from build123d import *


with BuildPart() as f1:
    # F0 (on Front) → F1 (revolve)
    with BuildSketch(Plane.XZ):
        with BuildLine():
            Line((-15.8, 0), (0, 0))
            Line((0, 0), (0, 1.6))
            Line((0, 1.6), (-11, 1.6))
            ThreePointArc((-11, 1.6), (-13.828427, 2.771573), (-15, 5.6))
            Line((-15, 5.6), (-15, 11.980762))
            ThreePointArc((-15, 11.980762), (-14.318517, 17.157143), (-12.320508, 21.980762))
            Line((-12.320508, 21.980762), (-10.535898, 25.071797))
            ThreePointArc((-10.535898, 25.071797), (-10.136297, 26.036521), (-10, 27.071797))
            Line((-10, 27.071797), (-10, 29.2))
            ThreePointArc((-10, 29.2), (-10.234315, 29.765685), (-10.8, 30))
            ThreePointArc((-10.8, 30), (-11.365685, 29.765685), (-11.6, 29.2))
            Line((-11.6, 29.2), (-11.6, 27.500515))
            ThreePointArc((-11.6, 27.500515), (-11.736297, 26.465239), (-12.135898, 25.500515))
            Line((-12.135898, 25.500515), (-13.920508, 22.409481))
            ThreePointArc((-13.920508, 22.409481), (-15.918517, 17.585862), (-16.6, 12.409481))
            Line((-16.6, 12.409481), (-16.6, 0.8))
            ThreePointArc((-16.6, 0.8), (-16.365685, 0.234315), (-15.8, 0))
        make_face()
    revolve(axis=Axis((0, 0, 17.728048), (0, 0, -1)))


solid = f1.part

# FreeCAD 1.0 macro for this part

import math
import FreeCAD as App
import Part
import Sketcher

V = App.Vector
Q = App.Units.Quantity

doc = App.newDocument("Part")
body = doc.addObject("PartDesign::Body", "Body")

# Sketch on XZ plane
sketch1 = body.newObject("Sketcher::SketchObject", "Sketch")
sketch1.AttachmentSupport = (doc.getObject("XZ_Plane"), [""])
sketch1.MapMode = "FlatFace"
sketch1.addGeometry(Part.LineSegment(V(-15.8, 0, 0), V(0, 0, 0)), False)
sketch1.addGeometry(Part.LineSegment(V(0, 0, 0), V(0, 1.6, 0)), False)
sketch1.addGeometry(Part.LineSegment(V(0, 1.6, 0), V(-11, 1.6, 0)), False)
sketch1.addGeometry(Part.ArcOfCircle(Part.Circle(V(-11, 5.6, 0), V(0, 0, 1), 4), math.radians(-179.999994), math.radians(-90.000006)), False)
sketch1.addGeometry(Part.LineSegment(V(-15, 5.6, 0), V(-15, 11.980762, 0)), False)
sketch1.addGeometry(Part.ArcOfCircle(Part.Circle(V(4.999985, 11.980766, 0), V(0, 0, 1), 19.999985), math.radians(149.999988), math.radians(180.000011)), False)
sketch1.addGeometry(Part.LineSegment(V(-12.320508, 21.980762, 0), V(-10.535898, 25.071797, 0)), False)
sketch1.addGeometry(Part.ArcOfCircle(Part.Circle(V(-14.000015, 27.0718, 0), V(0, 0, 1), 4.000015), math.radians(-29.999933), math.radians(-0.000046)), False)
sketch1.addGeometry(Part.LineSegment(V(-10, 27.071797, 0), V(-10, 29.2, 0)), False)
sketch1.addGeometry(Part.ArcOfCircle(Part.Circle(V(-10.800001, 29.199999, 0), V(0, 0, 1), 0.800001), math.radians(0.000104), math.radians(89.999896)), False)
sketch1.addGeometry(Part.ArcOfCircle(Part.Circle(V(-10.799999, 29.199999, 0), V(0, 0, 1), 0.800001), math.radians(90.000104), math.radians(179.999896)), False)
sketch1.addGeometry(Part.LineSegment(V(-11.6, 29.2, 0), V(-11.6, 27.500515, 0)), False)
sketch1.addGeometry(Part.ArcOfCircle(Part.Circle(V(-15.600015, 27.500518, 0), V(0, 0, 1), 4.000015), math.radians(-29.999933), math.radians(-0.000046)), False)
sketch1.addGeometry(Part.LineSegment(V(-12.135898, 25.500515, 0), V(-13.920508, 22.409481, 0)), False)
sketch1.addGeometry(Part.ArcOfCircle(Part.Circle(V(3.399985, 12.409485, 0), V(0, 0, 1), 19.999985), math.radians(149.999988), math.radians(180.000011)), False)
sketch1.addGeometry(Part.LineSegment(V(-16.6, 12.409481, 0), V(-16.6, 0.8, 0)), False)
sketch1.addGeometry(Part.ArcOfCircle(Part.Circle(V(-15.799999, 0.800001, 0), V(0, 0, 1), 0.800001), math.radians(-179.999896), math.radians(-90.000104)), False)
sketch1.addConstraint(Sketcher.Constraint("Coincident", 0, 2, 1, 1))
sketch1.addConstraint(Sketcher.Constraint("Coincident", 1, 2, 2, 1))
sketch1.addConstraint(Sketcher.Constraint("Tangent", 2, 2, 3, 2))
sketch1.addConstraint(Sketcher.Constraint("Tangent", 3, 1, 4, 1))
sketch1.addConstraint(Sketcher.Constraint("Tangent", 4, 2, 5, 2))
sketch1.addConstraint(Sketcher.Constraint("Tangent", 5, 1, 6, 1))
sketch1.addConstraint(Sketcher.Constraint("Tangent", 6, 2, 7, 1))
sketch1.addConstraint(Sketcher.Constraint("Tangent", 7, 2, 8, 1))
sketch1.addConstraint(Sketcher.Constraint("Tangent", 8, 2, 9, 1))
sketch1.addConstraint(Sketcher.Constraint("Coincident", 9, 2, 10, 1))
sketch1.addConstraint(Sketcher.Constraint("Tangent", 10, 2, 11, 1))
sketch1.addConstraint(Sketcher.Constraint("Tangent", 11, 2, 12, 2))
sketch1.addConstraint(Sketcher.Constraint("Tangent", 12, 1, 13, 1))
sketch1.addConstraint(Sketcher.Constraint("Tangent", 13, 2, 14, 1))
sketch1.addConstraint(Sketcher.Constraint("Tangent", 14, 2, 15, 1))
sketch1.addConstraint(Sketcher.Constraint("Tangent", 15, 2, 16, 1))
sketch1.addConstraint(Sketcher.Constraint("Tangent", 16, 2, 0, 1))
sketch1.addConstraint(Sketcher.Constraint("Horizontal", 0))
sketch1.addConstraint(Sketcher.Constraint("Vertical", 1))
sketch1.addConstraint(Sketcher.Constraint("Horizontal", 2))
sketch1.addConstraint(Sketcher.Constraint("Vertical", 4))
sketch1.addConstraint(Sketcher.Constraint("Vertical", 8))
sketch1.addConstraint(Sketcher.Constraint("Vertical", 11))
sketch1.addConstraint(Sketcher.Constraint("Vertical", 15))
sketch1.addConstraint(Sketcher.Constraint("Coincident", 0, 2, -1, 1))
sketch1.addConstraint(Sketcher.Constraint("Coincident", 10, 3, 9, 3))
sketch1.addConstraint(Sketcher.Constraint("Equal", 7, 12))
sketch1.addConstraint(Sketcher.Constraint("Equal", 5, 14))
sketch1.addConstraint(Sketcher.Constraint("Equal", 10, 16))
sketch1.addConstraint(Sketcher.Constraint("Parallel", 6, 13))
sketch1.addConstraint(Sketcher.Constraint("Vertical", 10, 3, 9, 2))
sketch1.addConstraint(Sketcher.Constraint("Equal", 6, 13))
sketch1.addConstraint(Sketcher.Constraint("Radius", 3, Q("4 mm")))
sketch1.addConstraint(Sketcher.Constraint("Radius", 9, Q("0.800001 mm")))
sketch1.addConstraint(Sketcher.Constraint("DistanceX", 2, 2, 2, 1, Q("11 mm")))
sketch1.addConstraint(Sketcher.Constraint("Angle", 6, Q("59.999998 deg")))
sketch1.addConstraint(Sketcher.Constraint("DistanceY", 1, 1, 1, 2, Q("1.6 mm")))
sketch1.addConstraint(Sketcher.Constraint("DistanceX", 7, 2, -1, 1, Q("10 mm")))
sketch1.addConstraint(Sketcher.Constraint("DistanceY", -1, 1, 9, 2, Q("30 mm")))
sketch1.addConstraint(Sketcher.Constraint("DistanceX", 7, 3, 5, 3, Q("19 mm")))
sketch1.addConstraint(Sketcher.Constraint("DistanceY", 4, 2, 5, 1, Q("10 mm")))
sketch1.addConstraint(Sketcher.Constraint("DistanceY", 15, 2, 15, 1, Q("11.609481 mm")))
sketch1.addConstraint(Sketcher.Constraint("DistanceY", -1, 1, 7, 3, Q("27.0718 mm")))
revolution = body.newObject("PartDesign::Revolution", "Revolution")
revolution.Profile = sketch1
revolution.ReferenceAxis = (sketch1, ["V_Axis"])
revolution.Angle = 360

doc.recompute()
